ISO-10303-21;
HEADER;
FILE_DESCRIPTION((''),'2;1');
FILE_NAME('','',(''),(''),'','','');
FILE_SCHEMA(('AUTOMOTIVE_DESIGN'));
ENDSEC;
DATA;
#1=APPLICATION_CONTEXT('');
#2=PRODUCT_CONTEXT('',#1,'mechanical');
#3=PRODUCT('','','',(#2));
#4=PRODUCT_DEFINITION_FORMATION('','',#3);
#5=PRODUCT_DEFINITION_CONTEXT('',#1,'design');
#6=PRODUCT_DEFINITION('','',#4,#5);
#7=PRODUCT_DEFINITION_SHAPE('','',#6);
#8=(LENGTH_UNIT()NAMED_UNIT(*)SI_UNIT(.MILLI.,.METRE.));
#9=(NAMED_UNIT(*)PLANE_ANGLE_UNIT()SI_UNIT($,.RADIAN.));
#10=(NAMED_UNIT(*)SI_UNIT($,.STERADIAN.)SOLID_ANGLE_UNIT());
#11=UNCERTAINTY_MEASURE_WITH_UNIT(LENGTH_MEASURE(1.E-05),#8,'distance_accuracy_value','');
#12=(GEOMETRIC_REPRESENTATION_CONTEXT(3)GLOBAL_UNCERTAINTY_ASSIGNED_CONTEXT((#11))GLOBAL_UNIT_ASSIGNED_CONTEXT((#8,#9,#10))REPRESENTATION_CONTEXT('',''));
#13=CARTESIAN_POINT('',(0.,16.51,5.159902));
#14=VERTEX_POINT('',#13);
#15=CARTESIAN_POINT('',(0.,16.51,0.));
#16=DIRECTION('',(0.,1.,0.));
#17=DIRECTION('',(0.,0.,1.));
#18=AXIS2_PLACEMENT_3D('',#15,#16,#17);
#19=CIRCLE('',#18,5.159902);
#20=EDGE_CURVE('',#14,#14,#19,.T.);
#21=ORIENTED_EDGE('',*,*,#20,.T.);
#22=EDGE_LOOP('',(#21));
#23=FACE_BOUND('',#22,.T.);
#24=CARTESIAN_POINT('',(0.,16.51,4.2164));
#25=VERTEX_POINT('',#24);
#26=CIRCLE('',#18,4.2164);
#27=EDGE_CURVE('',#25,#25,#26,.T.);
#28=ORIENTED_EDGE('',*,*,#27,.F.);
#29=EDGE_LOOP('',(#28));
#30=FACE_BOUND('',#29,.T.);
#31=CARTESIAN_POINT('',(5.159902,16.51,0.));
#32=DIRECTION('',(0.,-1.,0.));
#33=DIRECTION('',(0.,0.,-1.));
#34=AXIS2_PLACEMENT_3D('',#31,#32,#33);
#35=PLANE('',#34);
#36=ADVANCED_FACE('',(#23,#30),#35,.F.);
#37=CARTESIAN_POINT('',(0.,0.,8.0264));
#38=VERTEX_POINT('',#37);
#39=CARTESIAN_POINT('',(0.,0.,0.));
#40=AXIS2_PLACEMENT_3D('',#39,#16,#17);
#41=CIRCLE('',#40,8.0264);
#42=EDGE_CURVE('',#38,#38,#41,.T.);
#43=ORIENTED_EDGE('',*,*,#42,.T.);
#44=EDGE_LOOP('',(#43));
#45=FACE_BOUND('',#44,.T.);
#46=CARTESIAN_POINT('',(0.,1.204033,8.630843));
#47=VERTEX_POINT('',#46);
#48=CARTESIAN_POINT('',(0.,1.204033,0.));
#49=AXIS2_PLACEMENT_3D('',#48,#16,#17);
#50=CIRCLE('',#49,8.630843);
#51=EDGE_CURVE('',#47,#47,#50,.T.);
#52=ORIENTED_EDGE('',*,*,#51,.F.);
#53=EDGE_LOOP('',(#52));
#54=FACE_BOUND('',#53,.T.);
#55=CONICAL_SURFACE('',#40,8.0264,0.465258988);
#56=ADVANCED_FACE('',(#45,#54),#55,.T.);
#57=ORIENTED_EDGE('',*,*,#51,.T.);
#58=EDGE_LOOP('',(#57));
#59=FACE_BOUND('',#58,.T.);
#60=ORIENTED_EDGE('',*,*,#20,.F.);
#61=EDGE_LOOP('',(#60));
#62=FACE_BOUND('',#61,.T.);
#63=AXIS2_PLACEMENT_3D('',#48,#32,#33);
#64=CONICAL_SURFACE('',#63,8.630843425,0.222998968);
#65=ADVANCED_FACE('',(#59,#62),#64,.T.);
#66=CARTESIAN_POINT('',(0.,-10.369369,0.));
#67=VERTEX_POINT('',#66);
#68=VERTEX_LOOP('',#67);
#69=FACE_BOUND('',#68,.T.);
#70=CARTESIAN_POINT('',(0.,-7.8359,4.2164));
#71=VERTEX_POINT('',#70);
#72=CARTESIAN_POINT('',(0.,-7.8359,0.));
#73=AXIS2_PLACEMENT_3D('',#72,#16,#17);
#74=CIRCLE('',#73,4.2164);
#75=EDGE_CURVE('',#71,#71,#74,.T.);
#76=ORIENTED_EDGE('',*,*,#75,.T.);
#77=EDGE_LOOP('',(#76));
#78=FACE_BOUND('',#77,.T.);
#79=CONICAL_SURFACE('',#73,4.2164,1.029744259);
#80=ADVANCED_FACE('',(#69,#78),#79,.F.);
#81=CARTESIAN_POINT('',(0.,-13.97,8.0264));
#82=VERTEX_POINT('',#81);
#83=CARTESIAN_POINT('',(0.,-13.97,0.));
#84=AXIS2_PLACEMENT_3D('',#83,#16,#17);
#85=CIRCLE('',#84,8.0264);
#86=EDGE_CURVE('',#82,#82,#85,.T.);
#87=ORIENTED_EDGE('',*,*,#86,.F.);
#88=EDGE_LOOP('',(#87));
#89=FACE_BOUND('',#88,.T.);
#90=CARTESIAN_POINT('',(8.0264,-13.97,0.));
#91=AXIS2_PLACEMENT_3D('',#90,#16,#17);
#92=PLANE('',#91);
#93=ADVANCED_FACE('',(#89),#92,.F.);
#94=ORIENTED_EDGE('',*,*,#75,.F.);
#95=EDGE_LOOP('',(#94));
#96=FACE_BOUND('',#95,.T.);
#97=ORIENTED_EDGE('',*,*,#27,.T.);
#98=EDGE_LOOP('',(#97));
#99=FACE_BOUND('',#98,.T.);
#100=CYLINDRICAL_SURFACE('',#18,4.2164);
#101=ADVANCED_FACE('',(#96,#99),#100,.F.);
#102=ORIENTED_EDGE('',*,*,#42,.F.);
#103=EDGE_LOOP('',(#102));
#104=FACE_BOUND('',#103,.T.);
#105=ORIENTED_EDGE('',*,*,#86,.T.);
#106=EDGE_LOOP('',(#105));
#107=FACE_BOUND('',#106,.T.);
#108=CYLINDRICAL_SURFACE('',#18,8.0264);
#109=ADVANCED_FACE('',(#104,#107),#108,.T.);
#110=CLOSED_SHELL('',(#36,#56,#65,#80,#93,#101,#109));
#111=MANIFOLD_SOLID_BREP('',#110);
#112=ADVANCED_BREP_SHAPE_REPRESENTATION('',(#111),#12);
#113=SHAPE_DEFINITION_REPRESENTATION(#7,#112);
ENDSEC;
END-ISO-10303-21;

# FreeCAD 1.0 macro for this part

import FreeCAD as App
import Part
import Sketcher
from FreeCAD import Vector
Q = App.Units.Quantity

doc = App.newDocument("Part")
body = doc.addObject("PartDesign::Body", "Body")

# Sketch on XY plane
sketch1 = doc.addObject("Sketcher::SketchObject", "Sketch")
body.addObject(sketch1)
sketch1.AttachmentSupport = (doc.XY_Plane, [""])
sketch1.MapMode = "FlatFace"
sketch1.addGeometry([
    Part.LineSegment(Vector(0, -13.97, 0), Vector(8.0264, -13.97, 0)),  # 0
    Part.LineSegment(Vector(8.0264, -13.97, 0), Vector(8.0264, 0, 0)),  # 1
    Part.LineSegment(Vector(8.0264, 0, 0), Vector(8.630843, 1.204033, 0)),  # 2
    Part.LineSegment(Vector(8.630843, 1.204033, 0), Vector(5.159902, 16.51, 0)),  # 3
    Part.LineSegment(Vector(5.159902, 16.51, 0), Vector(0, 16.51, 0)),  # 4
    Part.LineSegment(Vector(0, 16.51, 0), Vector(0, -13.97, 0)),  # 5
], False)
sketch1.addConstraint([
    Sketcher.Constraint("Coincident", 0, 2, 1, 1),
    Sketcher.Constraint("Coincident", 1, 2, 2, 1),
    Sketcher.Constraint("Coincident", 2, 2, 3, 1),
    Sketcher.Constraint("Coincident", 3, 2, 4, 1),
    Sketcher.Constraint("Coincident", 4, 2, 5, 1),
    Sketcher.Constraint("Coincident", 5, 2, 0, 1),
    Sketcher.Constraint("Horizontal", 0),
    Sketcher.Constraint("Vertical", 1),
    Sketcher.Constraint("Horizontal", 4),
    Sketcher.Constraint("Vertical", 5),
    Sketcher.Constraint("PointOnObject", 1, 2, -1),
    Sketcher.Constraint("PointOnObject", 4, 2, -2),
    Sketcher.Constraint("DistanceY", 5, 2, 5, 1, Q("1.2 in")),
    Sketcher.Constraint("DistanceY", 1, 1, 1, 2, Q("0.55 in")),
    Sketcher.Constraint("DistanceX", 0, 1, 0, 2, Q("0.316 in")),
    Sketcher.Constraint("DistanceX", 4, 2, 4, 1, Q("5.159902 mm")),
    Sketcher.Constraint("DistanceX", 3, 2, 2, 2, Q("3.470942 mm")),
    Sketcher.Constraint("Distance", 2, Q("1.347237 mm")),
])
revolution = doc.addObject("PartDesign::Revolution", "Revolution")
body.addObject(revolution)
revolution.Profile = sketch1
revolution.ReferenceAxis = (sketch1, ["V_Axis"])
revolution.Angle = 360

# Sketch on XZ plane
sketch2 = doc.addObject("Sketcher::SketchObject", "Sketch001")
body.addObject(sketch2)
sketch2.AttachmentSupport = (doc.XZ_Plane, [""])
sketch2.MapMode = "FlatFace"
sketch2.AttachmentOffset = App.Placement(Vector(0, 0, -0.65 * 25.4), App.Rotation())
sketch2.addGeometry(Part.Circle(Vector(0, 0, 0), Vector(0, 0, 1), 4.2164), False)
sketch2.addConstraint([
    Sketcher.Constraint("Coincident", 0, 3, -1, 1),
    Sketcher.Constraint("Diameter", 0, Q("0.332 in")),
])
doc.recompute()
hole = doc.addObject("PartDesign::Hole", "Hole")
body.addObject(hole)
hole.Profile = sketch2
hole.ThreadType = "None"
hole.Diameter = Q("0.332 in")
hole.DepthType = "Dimension"
hole.Depth = Q("0.9585 in")
hole.DrillPoint = "Angled"
hole.DrillPointAngle = 118
hole.Reversed = True

doc.recompute()
